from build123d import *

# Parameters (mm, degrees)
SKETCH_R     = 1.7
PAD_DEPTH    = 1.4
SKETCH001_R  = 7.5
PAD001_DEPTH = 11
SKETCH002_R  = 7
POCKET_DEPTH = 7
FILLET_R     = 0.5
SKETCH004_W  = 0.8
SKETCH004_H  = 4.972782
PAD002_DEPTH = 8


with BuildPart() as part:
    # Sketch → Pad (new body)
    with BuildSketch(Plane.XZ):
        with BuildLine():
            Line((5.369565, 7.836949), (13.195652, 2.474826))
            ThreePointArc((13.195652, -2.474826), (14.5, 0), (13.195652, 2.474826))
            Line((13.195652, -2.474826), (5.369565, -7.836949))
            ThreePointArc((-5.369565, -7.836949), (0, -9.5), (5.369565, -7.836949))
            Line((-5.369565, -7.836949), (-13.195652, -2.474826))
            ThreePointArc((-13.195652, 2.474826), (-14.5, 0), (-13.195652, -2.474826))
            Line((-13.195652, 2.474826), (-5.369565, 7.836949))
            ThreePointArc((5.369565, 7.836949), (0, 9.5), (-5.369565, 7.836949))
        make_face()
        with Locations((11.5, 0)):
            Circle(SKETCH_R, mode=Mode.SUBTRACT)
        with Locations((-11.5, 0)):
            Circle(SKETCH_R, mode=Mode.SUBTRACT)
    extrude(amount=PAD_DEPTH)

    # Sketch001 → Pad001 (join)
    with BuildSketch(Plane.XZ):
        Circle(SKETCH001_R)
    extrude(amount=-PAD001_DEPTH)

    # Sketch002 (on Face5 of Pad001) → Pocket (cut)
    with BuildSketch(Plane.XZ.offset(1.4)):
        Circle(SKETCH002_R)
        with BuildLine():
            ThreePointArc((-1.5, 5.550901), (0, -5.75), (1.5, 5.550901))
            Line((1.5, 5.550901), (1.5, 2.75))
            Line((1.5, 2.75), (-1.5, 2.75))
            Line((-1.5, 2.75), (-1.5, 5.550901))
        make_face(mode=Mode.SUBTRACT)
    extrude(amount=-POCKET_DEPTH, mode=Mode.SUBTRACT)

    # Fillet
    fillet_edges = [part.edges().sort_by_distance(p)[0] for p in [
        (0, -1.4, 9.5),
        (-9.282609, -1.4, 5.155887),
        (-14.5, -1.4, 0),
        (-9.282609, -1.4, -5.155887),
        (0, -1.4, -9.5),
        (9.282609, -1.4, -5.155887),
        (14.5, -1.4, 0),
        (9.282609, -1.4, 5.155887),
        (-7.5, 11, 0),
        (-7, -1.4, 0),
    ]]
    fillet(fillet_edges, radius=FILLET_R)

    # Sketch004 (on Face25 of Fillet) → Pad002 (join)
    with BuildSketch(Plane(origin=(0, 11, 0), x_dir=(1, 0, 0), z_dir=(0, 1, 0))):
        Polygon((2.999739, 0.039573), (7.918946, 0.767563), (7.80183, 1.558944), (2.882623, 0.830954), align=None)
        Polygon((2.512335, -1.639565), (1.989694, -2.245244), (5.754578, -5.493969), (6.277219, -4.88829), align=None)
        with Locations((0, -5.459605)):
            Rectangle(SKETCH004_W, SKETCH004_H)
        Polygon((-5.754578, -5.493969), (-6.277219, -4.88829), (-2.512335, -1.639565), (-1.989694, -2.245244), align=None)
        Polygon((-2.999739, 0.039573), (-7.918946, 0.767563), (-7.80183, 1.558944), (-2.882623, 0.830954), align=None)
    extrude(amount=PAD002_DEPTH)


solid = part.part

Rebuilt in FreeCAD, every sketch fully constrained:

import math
import FreeCAD as App
import Part
import Sketcher


def edges_at(feature, points):
    """Names of the edges that pass closest to the given points."""
    edges = feature.Shape.Edges
    near = lambda p: min(range(len(edges)), key=lambda i: edges[i].distToShape(Part.Vertex(*p))[0])
    return sorted({f"Edge{near(p) + 1}" for p in points})

doc = App.newDocument("Part")
body = doc.addObject("PartDesign::Body", "Body")

sketch1 = body.newObject("Sketcher::SketchObject", "Sketch")
sketch1.AttachmentSupport = (doc.getObject("XZ_Plane"), [""])
sketch1.MapMode = "FlatFace"
sketch1.addGeometry([
    Part.LineSegment(App.Vector(13.2, 2.5, 0), App.Vector(5.4, 7.8, 0)),
    Part.ArcOfCircle(Part.Circle(App.Vector(0, 0, 0), App.Vector(0, 0, 1), 9.5), math.radians(56), math.radians(124)),
    Part.LineSegment(App.Vector(-5.4, 7.8, 0), App.Vector(-13.2, 2.5, 0)),
    Part.ArcOfCircle(Part.Circle(App.Vector(-11.5, 0, 0), App.Vector(0, 0, 1), 3), math.radians(124), math.radians(236)),
    Part.LineSegment(App.Vector(-13.2, -2.5, 0), App.Vector(-5.4, -7.8, 0)),
    Part.ArcOfCircle(Part.Circle(App.Vector(0, 0, 0), App.Vector(0, 0, 1), 9.5), math.radians(-124), math.radians(-56)),
    Part.LineSegment(App.Vector(5.4, -7.8, 0), App.Vector(13.2, -2.5, 0)),
    Part.ArcOfCircle(Part.Circle(App.Vector(11.5, 0, 0), App.Vector(0, 0, 1), 3), math.radians(-56), math.radians(56)),
    Part.Circle(App.Vector(11.5, 0, 0), App.Vector(0, 0, 1), 1.7),
    Part.Circle(App.Vector(-11.5, 0, 0), App.Vector(0, 0, 1), 1.7),
], False)
sketch1.addConstraint([
    Sketcher.Constraint("Tangent", 0, 2, 1, 1),
    Sketcher.Constraint("Tangent", 1, 2, 2, 1),
    Sketcher.Constraint("Tangent", 2, 2, 3, 1),
    Sketcher.Constraint("Tangent", 3, 2, 4, 1),
    Sketcher.Constraint("Tangent", 4, 2, 5, 1),
    Sketcher.Constraint("Tangent", 5, 2, 6, 1),
    Sketcher.Constraint("Tangent", 6, 2, 7, 1),
    Sketcher.Constraint("Tangent", 7, 2, 0, 1),
    Sketcher.Constraint("Coincident", 1, 3, -1, 1),
    Sketcher.Constraint("Coincident", 5, 3, -1, 1),
    Sketcher.Constraint("Coincident", 8, 3, 7, 3),
    Sketcher.Constraint("Coincident", 9, 3, 3, 3),
    Sketcher.Constraint("Equal", 1, 5),
    Sketcher.Constraint("Equal", 3, 7),
    Sketcher.Constraint("Equal", 8, 9),
    Sketcher.Constraint("Symmetric", 3, 3, 7, 3, -1, 1),
    Sketcher.Constraint("PointOnObject", 3, 3, -1),
    Sketcher.Constraint("Radius", 3, 3.0),
    Sketcher.Constraint("Diameter", 8, 3.4),
    Sketcher.Constraint("Radius", 1, 9.499999),
    Sketcher.Constraint("DistanceX", 3, 3, 7, 3, 23.0),
])
pad1 = body.newObject("PartDesign::Pad", "Pad")
pad1.Profile = sketch1
pad1.Length = 1.4

sketch2 = body.newObject("Sketcher::SketchObject", "Sketch001")
sketch2.AttachmentSupport = (doc.getObject("XZ_Plane"), [""])
sketch2.MapMode = "FlatFace"
sketch2.addGeometry(Part.Circle(App.Vector(0, 0, 0), App.Vector(0, 0, 1), 8), False)
sketch2.addConstraint([
    Sketcher.Constraint("Coincident", 0, 3, -1, 1),
    Sketcher.Constraint("Diameter", 0, 15.0),
])
pad2 = body.newObject("PartDesign::Pad", "Pad001")
pad2.Profile = sketch2
pad2.Length = 11
pad2.Reversed = True

sketch3 = body.newObject("Sketcher::SketchObject", "Sketch002")
sketch3.AttachmentSupport = (doc.getObject("XZ_Plane"), [""])
sketch3.MapMode = "FlatFace"
sketch3.AttachmentOffset = App.Placement(App.Vector(0, 0, 1.4), App.Rotation())
sketch3.addGeometry([
    Part.Circle(App.Vector(0, 0, 0), App.Vector(0, 0, 1), 7),
    Part.ArcOfCircle(Part.Circle(App.Vector(0, 0, 0), App.Vector(0, 0, 1), 5.8), math.radians(105), math.radians(435)),
    Part.LineSegment(App.Vector(-1.5, 5.6, 0), App.Vector(-1.5, 2.8, 0)),
    Part.LineSegment(App.Vector(-1.5, 2.8, 0), App.Vector(1.5, 2.8, 0)),
    Part.LineSegment(App.Vector(1.5, 2.8, 0), App.Vector(1.5, 5.6, 0)),
], False)
sketch3.addConstraint([
    Sketcher.Constraint("Coincident", 1, 1, 2, 1),
    Sketcher.Constraint("Coincident", 2, 2, 3, 1),
    Sketcher.Constraint("Coincident", 3, 2, 4, 1),
    Sketcher.Constraint("Coincident", 4, 2, 1, 2),
    Sketcher.Constraint("Vertical", 2),
    Sketcher.Constraint("Horizontal", 3),
    Sketcher.Constraint("Vertical", 4),
    Sketcher.Constraint("Coincident", 0, 3, -1, 1),
    Sketcher.Constraint("Coincident", 1, 3, -1, 1),
    Sketcher.Constraint("Horizontal", 1, 1, 4, 2),
    Sketcher.Constraint("Diameter", 0, 14.0),
    Sketcher.Constraint("DistanceX", 3, 1, 3, 2, 3.0),
    Sketcher.Constraint("Radius", 1, 5.75),
    Sketcher.Constraint("DistanceY", -1, 1, 2, 2, 2.75),
])
pocket1 = body.newObject("PartDesign::Pocket", "Pocket")
pocket1.Profile = sketch3
pocket1.Length = 7
doc.recompute()

fillet = body.newObject("PartDesign::Fillet", "Fillet")
fillet.Base = (pocket1, edges_at(pocket1, [
    (0, -1.4, 9.5),
    (-9.283, -1.4, 5.156),
    (-14.5, -1.4, 0),
    (-9.283, -1.4, -5.156),
    (0, -1.4, -9.5),
    (9.283, -1.4, -5.156),
    (14.5, -1.4, 0),
    (9.283, -1.4, 5.156),
    (-7.5, 11, 0),
    (-7, -1.4, 0),
]))
fillet.Radius = 0.5

sketch4 = body.newObject("Sketcher::SketchObject", "Sketch003")
sketch4.AttachmentSupport = (doc.getObject("XZ_Plane"), [""])
sketch4.MapMode = "FlatFace"
sketch4.AttachmentOffset = App.Placement(App.Vector(0, 0, -11), App.Rotation())
sketch4.addGeometry([
    Part.LineSegment(App.Vector(3, 0, 0), App.Vector(7.9, -0.8, 0)),
    Part.LineSegment(App.Vector(7.9, -0.8, 0), App.Vector(7.8, -1.6, 0)),
    Part.LineSegment(App.Vector(7.8, -1.6, 0), App.Vector(2.9, -0.8, 0)),
    Part.LineSegment(App.Vector(2.9, -0.8, 0), App.Vector(3, 0, 0)),
    Part.LineSegment(App.Vector(2.5, 1.6, 0), App.Vector(2, 2.2, 0)),
    Part.LineSegment(App.Vector(2, 2.2, 0), App.Vector(5.8, 5.5, 0)),
    Part.LineSegment(App.Vector(5.8, 5.5, 0), App.Vector(6.3, 4.9, 0)),
    Part.LineSegment(App.Vector(6.3, 4.9, 0), App.Vector(2.5, 1.6, 0)),
    Part.LineSegment(App.Vector(-0.4, 3, 0), App.Vector(-0.4, 7.9, 0)),
    Part.LineSegment(App.Vector(-0.4, 7.9, 0), App.Vector(0.4, 7.9, 0)),
    Part.LineSegment(App.Vector(0.4, 7.9, 0), App.Vector(0.4, 3, 0)),
    Part.LineSegment(App.Vector(0.4, 3, 0), App.Vector(-0.4, 3, 0)),
    Part.LineSegment(App.Vector(-6.3, 4.9, 0), App.Vector(-5.8, 5.5, 0)),
    Part.LineSegment(App.Vector(-5.8, 5.5, 0), App.Vector(-2, 2.2, 0)),
    Part.LineSegment(App.Vector(-2, 2.2, 0), App.Vector(-2.5, 1.6, 0)),
    Part.LineSegment(App.Vector(-2.5, 1.6, 0), App.Vector(-6.3, 4.9, 0)),
    Part.LineSegment(App.Vector(-7.9, -0.8, 0), App.Vector(-3, 0, 0)),
    Part.LineSegment(App.Vector(-3, 0, 0), App.Vector(-2.9, -0.8, 0)),
    Part.LineSegment(App.Vector(-2.9, -0.8, 0), App.Vector(-7.8, -1.6, 0)),
    Part.LineSegment(App.Vector(-7.8, -1.6, 0), App.Vector(-7.9, -0.8, 0)),
], False)
sketch4.addConstraint([
    Sketcher.Constraint("Coincident", 0, 2, 1, 1),
    Sketcher.Constraint("Coincident", 1, 2, 2, 1),
    Sketcher.Constraint("Coincident", 2, 2, 3, 1),
    Sketcher.Constraint("Coincident", 3, 2, 0, 1),
    Sketcher.Constraint("Coincident", 4, 2, 5, 1),
    Sketcher.Constraint("Coincident", 5, 2, 6, 1),
    Sketcher.Constraint("Coincident", 6, 2, 7, 1),
    Sketcher.Constraint("Coincident", 7, 2, 4, 1),
    Sketcher.Constraint("Coincident", 8, 2, 9, 1),
    Sketcher.Constraint("Coincident", 9, 2, 10, 1),
    Sketcher.Constraint("Coincident", 10, 2, 11, 1),
    Sketcher.Constraint("Coincident", 11, 2, 8, 1),
    Sketcher.Constraint("Coincident", 12, 2, 13, 1),
    Sketcher.Constraint("Coincident", 13, 2, 14, 1),
    Sketcher.Constraint("Coincident", 14, 2, 15, 1),
    Sketcher.Constraint("Coincident", 15, 2, 12, 1),
    Sketcher.Constraint("Coincident", 16, 2, 17, 1),
    Sketcher.Constraint("Coincident", 17, 2, 18, 1),
    Sketcher.Constraint("Coincident", 18, 2, 19, 1),
    Sketcher.Constraint("Coincident", 19, 2, 16, 1),
    Sketcher.Constraint("Vertical", 8),
    Sketcher.Constraint("Horizontal", 9),
    Sketcher.Constraint("Vertical", 10),
    Sketcher.Constraint("Horizontal", 11),
    Sketcher.Constraint("Symmetric", 5, 2, 12, 2, -2),
    Sketcher.Constraint("Symmetric", 4, 2, 13, 2, -2),
    Sketcher.Constraint("Symmetric", 7, 2, 14, 2, -2),
    Sketcher.Constraint("Symmetric", 6, 2, 15, 2, -2),
    Sketcher.Constraint("Symmetric", 3, 2, 16, 2, -2),
    Sketcher.Constraint("Symmetric", 2, 2, 17, 2, -2),
    Sketcher.Constraint("Symmetric", 1, 2, 18, 2, -2),
    Sketcher.Constraint("Symmetric", 0, 2, 19, 2, -2),
    Sketcher.Constraint("Perpendicular", 0, 1),
    Sketcher.Constraint("Perpendicular", 1, 2),
    Sketcher.Constraint("Perpendicular", 2, 3),
    Sketcher.Constraint("Perpendicular", 4, 5),
    Sketcher.Constraint("Perpendicular", 5, 6),
    Sketcher.Constraint("Perpendicular", 6, 7),
    Sketcher.Constraint("Equal", 3, 4),
    Sketcher.Constraint("Equal", 2, 5),
    Sketcher.Constraint("DistanceX", 9, 1, 9, 2, 0.8),
    Sketcher.Constraint("Distance", 1, 0.8),
    Sketcher.Constraint("DistanceX", 8, 2, -1, 1, 0.4),
    Sketcher.Constraint("DistanceY", 8, 1, 8, 2, 4.972782),
    Sketcher.Constraint("DistanceX", -1, 1, 1, 2, 7.80183),
    Sketcher.Constraint("DistanceX", -1, 1, 3, 2, 2.999739),
    Sketcher.Constraint("DistanceX", -1, 1, 5, 2, 5.754578),
    Sketcher.Constraint("DistanceY", -1, 1, 5, 2, 5.493969),
    Sketcher.Constraint("DistanceX", -1, 1, 6, 2, 6.277219),
    Sketcher.Constraint("DistanceY", 1, 2, 0, 2, 0.791381),
    Sketcher.Constraint("DistanceY", 3, 2, 5, 2, 5.533542),
    Sketcher.Constraint("DistanceY", 4, 2, 8, 2, 5.700752),
])
pad3 = body.newObject("PartDesign::Pad", "Pad002")
pad3.Profile = sketch4
pad3.Length = 8
pad3.Reversed = True

doc.recompute()
